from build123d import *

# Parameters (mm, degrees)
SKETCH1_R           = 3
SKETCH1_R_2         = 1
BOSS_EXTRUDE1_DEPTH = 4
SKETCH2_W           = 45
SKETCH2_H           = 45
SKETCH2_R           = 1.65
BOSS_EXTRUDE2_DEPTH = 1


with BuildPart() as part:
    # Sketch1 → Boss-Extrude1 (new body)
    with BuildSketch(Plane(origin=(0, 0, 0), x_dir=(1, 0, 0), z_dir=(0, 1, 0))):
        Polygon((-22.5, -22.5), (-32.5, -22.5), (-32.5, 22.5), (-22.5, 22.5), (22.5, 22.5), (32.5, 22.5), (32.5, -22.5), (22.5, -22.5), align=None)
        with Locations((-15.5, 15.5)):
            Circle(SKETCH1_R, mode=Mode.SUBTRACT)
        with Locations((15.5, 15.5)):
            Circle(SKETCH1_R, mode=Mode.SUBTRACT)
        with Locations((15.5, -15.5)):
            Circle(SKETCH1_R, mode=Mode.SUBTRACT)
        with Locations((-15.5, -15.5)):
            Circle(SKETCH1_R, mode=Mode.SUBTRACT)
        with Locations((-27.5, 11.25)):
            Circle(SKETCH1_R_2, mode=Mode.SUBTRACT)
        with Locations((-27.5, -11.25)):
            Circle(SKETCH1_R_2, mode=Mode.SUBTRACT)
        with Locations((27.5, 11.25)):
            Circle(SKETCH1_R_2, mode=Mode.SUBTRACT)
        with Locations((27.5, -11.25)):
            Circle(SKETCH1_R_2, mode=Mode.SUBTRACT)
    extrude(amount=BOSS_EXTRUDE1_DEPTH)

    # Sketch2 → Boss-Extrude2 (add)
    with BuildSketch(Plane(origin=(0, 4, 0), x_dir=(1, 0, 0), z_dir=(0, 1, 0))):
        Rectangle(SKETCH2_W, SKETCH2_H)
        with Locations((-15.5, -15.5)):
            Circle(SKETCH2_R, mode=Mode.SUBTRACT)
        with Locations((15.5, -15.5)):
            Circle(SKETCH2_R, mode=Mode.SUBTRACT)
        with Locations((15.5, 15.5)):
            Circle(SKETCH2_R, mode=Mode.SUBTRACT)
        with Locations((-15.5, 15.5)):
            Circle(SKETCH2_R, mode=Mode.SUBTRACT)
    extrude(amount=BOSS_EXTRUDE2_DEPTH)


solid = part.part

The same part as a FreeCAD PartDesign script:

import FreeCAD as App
import Part
import Sketcher

doc = App.newDocument("Part")
params = doc.addObject("Spreadsheet::Sheet", "Params")
for row, (alias, value) in enumerate([
    ("sketch1_diameter", "6 mm"),
    ("sketch1_diameter2", "2 mm"),
    ("sketch1_width", "65 mm"),
    ("sketch1_height", "45 mm"),
    ("pad1_length", "4 mm"),
    ("sketch2_diameter", "3.3 mm"),
    ("sketch2_width", "45 mm"),
    ("pad2_length", "1 mm"),
], start=1):
    params.set(f"A{row}", alias)
    params.set(f"B{row}", "=" + value)
    params.setAlias(f"B{row}", alias)

body = doc.addObject("PartDesign::Body", "Body")

# Sketch on XZ plane
sketch1 = doc.addObject("Sketcher::SketchObject", "Sketch")
body.addObject(sketch1)
sketch1.AttachmentSupport = (doc.XZ_Plane, [""])
sketch1.MapMode = "FlatFace"
sketch1.addGeometry([
    Part.LineSegment(App.Vector(-32.5, 22.5, 0), App.Vector(32.5, 22.5, 0)),  # 0
    Part.LineSegment(App.Vector(32.5, 22.5, 0), App.Vector(32.5, -22.5, 0)),  # 1
    Part.LineSegment(App.Vector(32.5, -22.5, 0), App.Vector(-32.5, -22.5, 0)),  # 2
    Part.LineSegment(App.Vector(-32.5, -22.5, 0), App.Vector(-32.5, 22.5, 0)),  # 3
    Part.Circle(App.Vector(15.5, 15.5, 0), App.Vector(0, 0, 1), 3),  # 4
    Part.Circle(App.Vector(27.5, 11.2, 0), App.Vector(0, 0, 1), 1),  # 5
    Part.Circle(App.Vector(-15.5, 15.5, 0), App.Vector(0, 0, 1), 3),  # 6
    Part.Circle(App.Vector(-27.5, 11.2, 0), App.Vector(0, 0, 1), 1),  # 7
    Part.Circle(App.Vector(27.5, -11.2, 0), App.Vector(0, 0, 1), 1),  # 8
    Part.Circle(App.Vector(15.5, -15.5, 0), App.Vector(0, 0, 1), 3),  # 9
    Part.Circle(App.Vector(-27.5, -11.2, 0), App.Vector(0, 0, 1), 1),  # 10
    Part.Circle(App.Vector(-15.5, -15.5, 0), App.Vector(0, 0, 1), 3),  # 11
], False)
sketch1.addConstraint([
    Sketcher.Constraint("Coincident", 0, 2, 1, 1),
    Sketcher.Constraint("Coincident", 1, 2, 2, 1),
    Sketcher.Constraint("Coincident", 2, 2, 3, 1),
    Sketcher.Constraint("Coincident", 3, 2, 0, 1),
    Sketcher.Constraint("Horizontal", 0),
    Sketcher.Constraint("Vertical", 1),
    Sketcher.Constraint("Horizontal", 2),
    Sketcher.Constraint("Vertical", 3),
    Sketcher.Constraint("Equal", 4, 6),
    Sketcher.Constraint("Equal", 5, 7),
    Sketcher.Constraint("Equal", 7, 8),
    Sketcher.Constraint("Equal", 6, 9),
    Sketcher.Constraint("Equal", 8, 10),
    Sketcher.Constraint("Equal", 9, 11),
    Sketcher.Constraint("Symmetric", 7, 3, 8, 3, -1, 1),
    Sketcher.Constraint("Symmetric", 6, 3, 9, 3, -1, 1),
    Sketcher.Constraint("Symmetric", 5, 3, 10, 3, -1, 1),
    Sketcher.Constraint("Symmetric", 4, 3, 11, 3, -1, 1),
    Sketcher.Constraint("Symmetric", 0, 2, 2, 2, -1, 1),
    Sketcher.Constraint("Symmetric", 4, 3, 6, 3, -2),
    Sketcher.Constraint("Symmetric", 5, 3, 7, 3, -2),
    Sketcher.Constraint("Diameter", 4, 6.0),
    Sketcher.Constraint("Diameter", 5, 2.0),
    Sketcher.Constraint("DistanceX", 0, 1, 0, 2, 65.0),
    Sketcher.Constraint("DistanceY", 1, 2, 1, 1, 45.0),
    Sketcher.Constraint("DistanceX", 4, 3, 5, 3, 12.0),
    Sketcher.Constraint("DistanceX", 6, 3, 4, 3, 31.0),
    Sketcher.Constraint("DistanceY", 9, 3, 4, 3, 31.0),
    Sketcher.Constraint("DistanceY", 8, 3, 5, 3, 22.5),
])
sketch1.setExpression("Constraints[21]", "Params.sketch1_diameter")
sketch1.setExpression("Constraints[22]", "Params.sketch1_diameter2")
sketch1.setExpression("Constraints[23]", "Params.sketch1_width")
sketch1.setExpression("Constraints[24]", "Params.sketch1_height")
pad1 = doc.addObject("PartDesign::Pad", "Pad")
body.addObject(pad1)
pad1.Profile = sketch1
pad1.setExpression("Length", "Params.pad1_length")
pad1.Reversed = True

# Sketch on XZ plane
sketch2 = doc.addObject("Sketcher::SketchObject", "Sketch001")
body.addObject(sketch2)
sketch2.AttachmentSupport = (doc.XZ_Plane, [""])
sketch2.MapMode = "FlatFace"
sketch2.AttachmentOffset = App.Placement(App.Vector(0, 0, -4), App.Rotation())
sketch2.addGeometry([
    Part.LineSegment(App.Vector(-22.5, -22.5, 0), App.Vector(-22.5, 22.5, 0)),  # 0
    Part.LineSegment(App.Vector(-22.5, 22.5, 0), App.Vector(22.5, 22.5, 0)),  # 1
    Part.LineSegment(App.Vector(22.5, 22.5, 0), App.Vector(22.5, -22.5, 0)),  # 2
    Part.LineSegment(App.Vector(22.5, -22.5, 0), App.Vector(-22.5, -22.5, 0)),  # 3
    Part.Circle(App.Vector(-15.5, 15.5, 0), App.Vector(0, 0, 1), 1.6),  # 4
    Part.Circle(App.Vector(15.5, 15.5, 0), App.Vector(0, 0, 1), 1.6),  # 5
    Part.Circle(App.Vector(-15.5, -15.5, 0), App.Vector(0, 0, 1), 1.6),  # 6
    Part.Circle(App.Vector(15.5, -15.5, 0), App.Vector(0, 0, 1), 1.6),  # 7
], False)
sketch2.addConstraint([
    Sketcher.Constraint("Coincident", 0, 2, 1, 1),
    Sketcher.Constraint("Coincident", 1, 2, 2, 1),
    Sketcher.Constraint("Coincident", 2, 2, 3, 1),
    Sketcher.Constraint("Coincident", 3, 2, 0, 1),
    Sketcher.Constraint("Vertical", 0),
    Sketcher.Constraint("Horizontal", 1),
    Sketcher.Constraint("Vertical", 2),
    Sketcher.Constraint("Horizontal", 3),
    Sketcher.Constraint("Equal", 4, 5),
    Sketcher.Constraint("Equal", 5, 6),
    Sketcher.Constraint("Equal", 6, 7),
    Sketcher.Constraint("Symmetric", 5, 3, 6, 3, -1, 1),
    Sketcher.Constraint("Symmetric", 4, 3, 7, 3, -1, 1),
    Sketcher.Constraint("Symmetric", 0, 2, 2, 2, -1, 1),
    Sketcher.Constraint("Symmetric", 4, 3, 5, 3, -2),
    Sketcher.Constraint("Equal", 3, 0),
    Sketcher.Constraint("Diameter", 4, 3.3),
    Sketcher.Constraint("DistanceX", 1, 1, 1, 2, 45.0),
    Sketcher.Constraint("DistanceX", 4, 3, 5, 3, 31.0),
    Sketcher.Constraint("DistanceY", 6, 3, 4, 3, 31.0),
])
sketch2.setExpression("Constraints[16]", "Params.sketch2_diameter")
sketch2.setExpression("Constraints[17]", "Params.sketch2_width")
pad2 = doc.addObject("PartDesign::Pad", "Pad001")
body.addObject(pad2)
pad2.Profile = sketch2
pad2.setExpression("Length", "Params.pad2_length")
pad2.Reversed = True

doc.recompute()
